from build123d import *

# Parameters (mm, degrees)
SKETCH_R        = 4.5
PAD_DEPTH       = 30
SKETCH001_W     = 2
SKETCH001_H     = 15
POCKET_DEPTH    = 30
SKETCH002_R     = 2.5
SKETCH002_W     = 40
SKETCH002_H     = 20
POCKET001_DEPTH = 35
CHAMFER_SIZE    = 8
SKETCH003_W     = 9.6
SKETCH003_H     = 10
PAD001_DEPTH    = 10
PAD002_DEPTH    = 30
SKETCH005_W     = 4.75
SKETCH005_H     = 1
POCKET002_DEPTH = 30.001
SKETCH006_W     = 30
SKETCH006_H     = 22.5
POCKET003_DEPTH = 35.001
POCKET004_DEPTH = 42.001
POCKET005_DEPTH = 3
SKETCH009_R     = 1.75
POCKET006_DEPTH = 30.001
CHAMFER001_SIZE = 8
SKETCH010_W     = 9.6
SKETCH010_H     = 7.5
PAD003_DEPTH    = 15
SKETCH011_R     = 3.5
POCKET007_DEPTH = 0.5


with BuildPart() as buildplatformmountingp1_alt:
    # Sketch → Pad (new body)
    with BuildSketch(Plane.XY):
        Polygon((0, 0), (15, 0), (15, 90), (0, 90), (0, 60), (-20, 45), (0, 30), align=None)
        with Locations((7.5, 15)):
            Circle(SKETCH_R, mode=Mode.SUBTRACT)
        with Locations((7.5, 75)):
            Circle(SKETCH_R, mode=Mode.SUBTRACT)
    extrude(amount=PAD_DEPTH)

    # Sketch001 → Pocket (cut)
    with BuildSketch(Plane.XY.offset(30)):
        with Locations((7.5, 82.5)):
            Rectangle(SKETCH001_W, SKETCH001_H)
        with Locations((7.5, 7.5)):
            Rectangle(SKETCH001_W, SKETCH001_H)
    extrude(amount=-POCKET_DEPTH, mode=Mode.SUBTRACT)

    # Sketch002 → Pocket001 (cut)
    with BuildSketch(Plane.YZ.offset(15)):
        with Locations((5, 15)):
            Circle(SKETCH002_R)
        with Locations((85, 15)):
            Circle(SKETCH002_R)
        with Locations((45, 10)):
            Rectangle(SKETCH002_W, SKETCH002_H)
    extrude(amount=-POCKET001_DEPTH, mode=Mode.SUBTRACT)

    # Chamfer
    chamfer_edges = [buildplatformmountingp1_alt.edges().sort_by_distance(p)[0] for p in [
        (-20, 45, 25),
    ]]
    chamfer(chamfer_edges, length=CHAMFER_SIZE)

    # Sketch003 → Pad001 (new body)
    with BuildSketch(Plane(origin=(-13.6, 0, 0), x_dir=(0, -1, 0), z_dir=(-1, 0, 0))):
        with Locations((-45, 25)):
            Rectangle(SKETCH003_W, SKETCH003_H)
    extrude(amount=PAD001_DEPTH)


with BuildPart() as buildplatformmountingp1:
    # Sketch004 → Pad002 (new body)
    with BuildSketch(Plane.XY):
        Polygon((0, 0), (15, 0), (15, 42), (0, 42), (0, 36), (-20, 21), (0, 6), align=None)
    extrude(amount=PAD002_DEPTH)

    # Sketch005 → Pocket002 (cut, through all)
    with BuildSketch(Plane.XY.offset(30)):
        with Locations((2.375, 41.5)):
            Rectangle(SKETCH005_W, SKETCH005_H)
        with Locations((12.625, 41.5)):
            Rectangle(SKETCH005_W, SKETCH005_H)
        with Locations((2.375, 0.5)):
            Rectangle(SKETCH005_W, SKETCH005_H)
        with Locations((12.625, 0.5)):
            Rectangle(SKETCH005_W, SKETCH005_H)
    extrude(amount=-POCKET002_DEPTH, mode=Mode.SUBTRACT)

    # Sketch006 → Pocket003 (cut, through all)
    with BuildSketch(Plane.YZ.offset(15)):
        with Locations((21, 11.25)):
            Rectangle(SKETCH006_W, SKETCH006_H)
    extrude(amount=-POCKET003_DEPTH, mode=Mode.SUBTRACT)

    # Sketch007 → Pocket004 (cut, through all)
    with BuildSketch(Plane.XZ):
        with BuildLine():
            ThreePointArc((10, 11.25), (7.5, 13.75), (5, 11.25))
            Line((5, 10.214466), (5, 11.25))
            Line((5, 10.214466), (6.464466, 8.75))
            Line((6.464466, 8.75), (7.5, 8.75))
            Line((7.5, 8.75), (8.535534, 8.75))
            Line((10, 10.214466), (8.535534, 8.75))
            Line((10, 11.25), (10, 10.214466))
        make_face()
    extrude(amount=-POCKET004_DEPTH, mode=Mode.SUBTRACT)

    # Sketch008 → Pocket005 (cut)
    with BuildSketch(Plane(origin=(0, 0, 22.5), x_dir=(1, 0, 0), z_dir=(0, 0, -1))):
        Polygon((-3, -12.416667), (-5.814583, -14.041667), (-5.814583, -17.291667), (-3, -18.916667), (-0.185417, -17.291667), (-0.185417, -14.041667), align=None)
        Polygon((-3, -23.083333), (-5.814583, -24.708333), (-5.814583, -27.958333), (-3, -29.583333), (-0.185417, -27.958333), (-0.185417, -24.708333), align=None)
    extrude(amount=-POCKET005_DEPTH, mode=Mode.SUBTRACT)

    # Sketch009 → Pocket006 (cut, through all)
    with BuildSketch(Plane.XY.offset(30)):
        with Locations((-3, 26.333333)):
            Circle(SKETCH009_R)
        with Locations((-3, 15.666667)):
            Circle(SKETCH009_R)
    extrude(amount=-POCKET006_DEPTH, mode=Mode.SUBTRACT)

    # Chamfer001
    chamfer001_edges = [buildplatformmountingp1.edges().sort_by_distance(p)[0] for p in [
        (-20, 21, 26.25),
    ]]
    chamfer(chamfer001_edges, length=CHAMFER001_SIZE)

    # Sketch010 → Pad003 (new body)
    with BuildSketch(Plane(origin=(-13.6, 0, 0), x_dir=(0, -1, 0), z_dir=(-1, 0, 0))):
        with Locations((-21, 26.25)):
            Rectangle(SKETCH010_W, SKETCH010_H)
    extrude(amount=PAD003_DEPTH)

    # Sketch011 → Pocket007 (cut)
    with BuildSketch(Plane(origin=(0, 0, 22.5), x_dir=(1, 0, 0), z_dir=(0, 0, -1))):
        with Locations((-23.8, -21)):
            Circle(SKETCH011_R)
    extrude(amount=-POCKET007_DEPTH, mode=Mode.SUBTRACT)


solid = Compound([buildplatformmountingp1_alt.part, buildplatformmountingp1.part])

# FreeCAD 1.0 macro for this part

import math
import FreeCAD as App
import Part
import Sketcher
Q = App.Units.Quantity


def edges_at(feature, points):
    """Names of the edges that pass closest to the given points."""
    edges = feature.Shape.Edges
    near = lambda p: min(range(len(edges)), key=lambda i: edges[i].distToShape(Part.Vertex(*p))[0])
    return sorted({f"Edge{near(p) + 1}" for p in points})


def add_polygon(sketch, points):
    """Adds a closed chain of lines whose ends are joined by coincident constraints."""
    first, n = sketch.GeometryCount, len(points)
    for a, b in zip(points, points[1:] + points[:1]):
        sketch.addGeometry(Part.LineSegment(App.Vector(*a, 0), App.Vector(*b, 0)), False)
    for i in range(n):
        sketch.addConstraint(Sketcher.Constraint("Coincident", first + i, 2, first + (i + 1) % n, 1))

doc = App.newDocument("Part")
body = doc.addObject("PartDesign::Body", "Body")

# Sketch on XY plane
sketch1 = doc.addObject("Sketcher::SketchObject", "Sketch")
body.addObject(sketch1)
sketch1.AttachmentSupport = (doc.XY_Plane, [""])
sketch1.MapMode = "FlatFace"
add_polygon(sketch1, [(0, 0), (15, 0), (15, 90), (0, 90), (0, 60), (-20, 45), (0, 30)])  # lines 0-6
sketch1.addGeometry(Part.Circle(App.Vector(7.5, 15, 0), App.Vector(0, 0, 1), 4.5), False)  # 7
sketch1.addGeometry(Part.Circle(App.Vector(7.5, 75, 0), App.Vector(0, 0, 1), 4.5), False)  # 8
sketch1.addConstraint([
    Sketcher.Constraint("Horizontal", 0),
    Sketcher.Constraint("Vertical", 1),
    Sketcher.Constraint("Horizontal", 2),
    Sketcher.Constraint("Vertical", 3),
    Sketcher.Constraint("Vertical", 6),
    Sketcher.Constraint("Coincident", 6, 2, -1, 1),
    Sketcher.Constraint("Equal", 7, 8),
    Sketcher.Constraint("PointOnObject", 2, 2, -2),
    Sketcher.Constraint("Vertical", 7, 3, 8, 3),
    Sketcher.Constraint("Equal", 3, 6),
    Sketcher.Constraint("Equal", 4, 5),
    Sketcher.Constraint("Diameter", 7, Q("9 mm")),
    Sketcher.Constraint("DistanceX", 0, 1, 0, 2, Q("15 mm")),
    Sketcher.Constraint("DistanceY", 1, 1, 1, 2, Q("90 mm")),
    Sketcher.Constraint("DistanceY", 3, 2, 3, 1, Q("30 mm")),
    Sketcher.Constraint("Distance", 4, Q("25 mm")),
    Sketcher.Constraint("DistanceY", -1, 1, 7, 3, Q("15 mm")),
    Sketcher.Constraint("DistanceY", -1, 1, 8, 3, Q("75 mm")),
    Sketcher.Constraint("DistanceX", -1, 1, 7, 3, Q("7.5 mm")),
])
pad1 = doc.addObject("PartDesign::Pad", "Pad")
body.addObject(pad1)
pad1.Profile = sketch1
pad1.Length = 30

# Sketch on XY plane
sketch2 = doc.addObject("Sketcher::SketchObject", "Sketch001")
body.addObject(sketch2)
sketch2.AttachmentSupport = (doc.XY_Plane, [""])
sketch2.MapMode = "FlatFace"
sketch2.AttachmentOffset = App.Placement(App.Vector(0, 0, 30), App.Rotation())
add_polygon(sketch2, [(6.5, 90), (6.5, 75), (8.5, 75), (8.5, 90)])  # lines 0-3
add_polygon(sketch2, [(6.5, 15), (6.5, 0), (8.5, 0), (8.5, 15)])  # lines 4-7
sketch2.addConstraint([
    Sketcher.Constraint("Vertical", 0),
    Sketcher.Constraint("Horizontal", 1),
    Sketcher.Constraint("Vertical", 2),
    Sketcher.Constraint("Horizontal", 3),
    Sketcher.Constraint("Vertical", 4),
    Sketcher.Constraint("Horizontal", 5),
    Sketcher.Constraint("Vertical", 6),
    Sketcher.Constraint("Horizontal", 7),
    Sketcher.Constraint("PointOnObject", 4, 2, -1),
    Sketcher.Constraint("Vertical", 3, 2, 4, 2),
    Sketcher.Constraint("Vertical", 2, 2, 5, 2),
    Sketcher.Constraint("Equal", 2, 4),
    Sketcher.Constraint("DistanceX", 1, 1, 1, 2, Q("2 mm")),
    Sketcher.Constraint("DistanceY", 0, 2, 0, 1, Q("15 mm")),
    Sketcher.Constraint("DistanceY", -1, 1, 0, 2, Q("75 mm")),
    Sketcher.Constraint("DistanceX", -1, 1, 0, 2, Q("6.5 mm")),
])
pocket1 = doc.addObject("PartDesign::Pocket", "Pocket")
body.addObject(pocket1)
pocket1.Profile = sketch2
pocket1.Length = 30

# Sketch on YZ plane
sketch3 = doc.addObject("Sketcher::SketchObject", "Sketch002")
body.addObject(sketch3)
sketch3.AttachmentSupport = (doc.YZ_Plane, [""])
sketch3.MapMode = "FlatFace"
sketch3.AttachmentOffset = App.Placement(App.Vector(0, 0, 15), App.Rotation())
sketch3.addGeometry(Part.Circle(App.Vector(5, 15, 0), App.Vector(0, 0, 1), 2.5), False)  # 0
sketch3.addGeometry(Part.Circle(App.Vector(85, 15, 0), App.Vector(0, 0, 1), 2.5), False)  # 1
add_polygon(sketch3, [(25, 20), (25, 0), (65, 0), (65, 20)])  # lines 2-5
sketch3.addConstraint([
    Sketcher.Constraint("Vertical", 2),
    Sketcher.Constraint("Horizontal", 3),
    Sketcher.Constraint("Vertical", 4),
    Sketcher.Constraint("Horizontal", 5),
    Sketcher.Constraint("Equal", 0, 1),
    Sketcher.Constraint("PointOnObject", 2, 2, -1),
    Sketcher.Constraint("Horizontal", 0, 3, 1, 3),
    Sketcher.Constraint("Diameter", 0, Q("5 mm")),
    Sketcher.Constraint("DistanceX", 3, 1, 3, 2, Q("40 mm")),
    Sketcher.Constraint("DistanceY", 2, 2, 2, 1, Q("20 mm")),
    Sketcher.Constraint("DistanceX", -1, 1, 0, 3, Q("5 mm")),
    Sketcher.Constraint("DistanceY", -1, 1, 0, 3, Q("15 mm")),
    Sketcher.Constraint("DistanceX", -1, 1, 1, 3, Q("85 mm")),
    Sketcher.Constraint("DistanceX", -1, 1, 2, 2, Q("25 mm")),
])
pocket2 = doc.addObject("PartDesign::Pocket", "Pocket001")
body.addObject(pocket2)
pocket2.Profile = sketch3
pocket2.Length = 35
doc.recompute()

chamfer = doc.addObject("PartDesign::Chamfer", "Chamfer")
body.addObject(chamfer)
chamfer.Base = (pocket2, edges_at(pocket2, [(-20, 45, 25)]))
chamfer.Size = 8

# Sketch on YZ plane
sketch4 = doc.addObject("Sketcher::SketchObject", "Sketch003")
body.addObject(sketch4)
sketch4.AttachmentSupport = (doc.YZ_Plane, [""])
sketch4.MapMode = "FlatFace"
sketch4.AttachmentOffset = App.Placement(App.Vector(0, 0, -13.6), App.Rotation())
add_polygon(sketch4, [(50, 30), (50, 20), (40, 20), (40, 30)])  # lines 0-3
sketch4.addConstraint([
    Sketcher.Constraint("Vertical", 0),
    Sketcher.Constraint("Horizontal", 1),
    Sketcher.Constraint("Vertical", 2),
    Sketcher.Constraint("Horizontal", 3),
    Sketcher.Constraint("DistanceY", 0, 2, 0, 1, Q("10 mm")),
    Sketcher.Constraint("DistanceX", 1, 2, 1, 1, Q("9.6 mm")),
    Sketcher.Constraint("DistanceY", -1, 1, 0, 2, Q("20 mm")),
    Sketcher.Constraint("DistanceX", -1, 1, 0, 2, Q("49.8 mm")),
])
pad2 = doc.addObject("PartDesign::Pad", "Pad001")
body.addObject(pad2)
pad2.Profile = sketch4
pad2.Length = 10
pad2.Reversed = True
body2 = doc.addObject("PartDesign::Body", "Body001")

# Sketch on XY plane
sketch5 = doc.addObject("Sketcher::SketchObject", "Sketch004")
body2.addObject(sketch5)
sketch5.AttachmentSupport = (doc.getObject("XY_Plane001"), [""])
sketch5.MapMode = "FlatFace"
add_polygon(sketch5, [(0, 0), (15, 0), (15, 42), (0, 42), (0, 36), (-20, 21), (0, 6)])  # lines 0-6
sketch5.addConstraint([
    Sketcher.Constraint("Horizontal", 0),
    Sketcher.Constraint("Vertical", 1),
    Sketcher.Constraint("Horizontal", 2),
    Sketcher.Constraint("Vertical", 3),
    Sketcher.Constraint("Vertical", 6),
    Sketcher.Constraint("Coincident", 6, 2, -1, 1),
    Sketcher.Constraint("PointOnObject", 2, 2, -2),
    Sketcher.Constraint("Equal", 3, 6),
    Sketcher.Constraint("Equal", 4, 5),
    Sketcher.Constraint("DistanceX", 0, 1, 0, 2, Q("15 mm")),
    Sketcher.Constraint("DistanceY", 1, 1, 1, 2, Q("42 mm")),
    Sketcher.Constraint("DistanceY", 3, 2, 3, 1, Q("6 mm")),
    Sketcher.Constraint("Distance", 4, Q("25 mm")),
])
pad3 = doc.addObject("PartDesign::Pad", "Pad002")
body2.addObject(pad3)
pad3.Profile = sketch5
pad3.Length = 30

# Sketch on XY plane
sketch6 = doc.addObject("Sketcher::SketchObject", "Sketch005")
body2.addObject(sketch6)
sketch6.AttachmentSupport = (doc.getObject("XY_Plane001"), [""])
sketch6.MapMode = "FlatFace"
sketch6.AttachmentOffset = App.Placement(App.Vector(0, 0, 30), App.Rotation())
add_polygon(sketch6, [(0, 42), (0, 41), (4.8, 41), (4.8, 42)])  # lines 0-3
add_polygon(sketch6, [(10.2, 42), (10.2, 41), (15, 41), (15, 42)])  # lines 4-7
add_polygon(sketch6, [(0, 1), (0, 0), (4.8, 0), (4.8, 1)])  # lines 8-11
add_polygon(sketch6, [(10.2, 1), (10.2, 0), (15, 0), (15, 1)])  # lines 12-15
sketch6.addConstraint([
    Sketcher.Constraint("Vertical", 0),
    Sketcher.Constraint("Horizontal", 1),
    Sketcher.Constraint("Vertical", 2),
    Sketcher.Constraint("Horizontal", 3),
    Sketcher.Constraint("Vertical", 4),
    Sketcher.Constraint("Horizontal", 5),
    Sketcher.Constraint("Vertical", 6),
    Sketcher.Constraint("Horizontal", 7),
    Sketcher.Constraint("Vertical", 8),
    Sketcher.Constraint("Horizontal", 9),
    Sketcher.Constraint("Vertical", 10),
    Sketcher.Constraint("Horizontal", 11),
    Sketcher.Constraint("Vertical", 12),
    Sketcher.Constraint("Horizontal", 13),
    Sketcher.Constraint("Vertical", 14),
    Sketcher.Constraint("Horizontal", 15),
    Sketcher.Constraint("Coincident", 8, 2, -1, 1),
    Sketcher.Constraint("PointOnObject", 0, 2, -2),
    Sketcher.Constraint("PointOnObject", 12, 2, -1),
    Sketcher.Constraint("Horizontal", 1, 2, 4, 2),
    Sketcher.Constraint("Horizontal", 3, 2, 6, 2),
    Sketcher.Constraint("Horizontal", 11, 2, 14, 2),
    Sketcher.Constraint("Vertical", 2, 2, 9, 2),
    Sketcher.Constraint("Vertical", 7, 2, 12, 2),
    Sketcher.Constraint("Vertical", 6, 2, 13, 2),
    Sketcher.Constraint("Equal", 3, 5),
    Sketcher.Constraint("Equal", 6, 8),
    Sketcher.Constraint("DistanceY", 0, 2, 0, 1, Q("1 mm")),
    Sketcher.Constraint("DistanceY", -1, 1, 0, 2, Q("41 mm")),
    Sketcher.Constraint("DistanceX", -1, 1, 5, 2, Q("15 mm")),
    Sketcher.Constraint("DistanceX", 1, 1, 1, 2, Q("4.75 mm")),
])
pocket3 = doc.addObject("PartDesign::Pocket", "Pocket002")
body2.addObject(pocket3)
pocket3.Profile = sketch6
pocket3.Type = "ThroughAll"

# Sketch on YZ plane
sketch7 = doc.addObject("Sketcher::SketchObject", "Sketch006")
body2.addObject(sketch7)
sketch7.AttachmentSupport = (doc.getObject("YZ_Plane001"), [""])
sketch7.MapMode = "FlatFace"
sketch7.AttachmentOffset = App.Placement(App.Vector(0, 0, 15), App.Rotation())
add_polygon(sketch7, [(6, 22), (6, 0), (36, 0), (36, 22)])  # lines 0-3
sketch7.addConstraint([
    Sketcher.Constraint("Vertical", 0),
    Sketcher.Constraint("Horizontal", 1),
    Sketcher.Constraint("Vertical", 2),
    Sketcher.Constraint("Horizontal", 3),
    Sketcher.Constraint("PointOnObject", 0, 2, -1),
    Sketcher.Constraint("DistanceX", 1, 1, 1, 2, Q("30 mm")),
    Sketcher.Constraint("DistanceY", 0, 2, 0, 1, Q("22.5 mm")),
    Sketcher.Constraint("DistanceX", -1, 1, 0, 2, Q("6 mm")),
])
pocket4 = doc.addObject("PartDesign::Pocket", "Pocket003")
body2.addObject(pocket4)
pocket4.Profile = sketch7
pocket4.Type = "ThroughAll"

# Sketch on XZ plane
sketch8 = doc.addObject("Sketcher::SketchObject", "Sketch007")
body2.addObject(sketch8)
sketch8.AttachmentSupport = (doc.getObject("XZ_Plane001"), [""])
sketch8.MapMode = "FlatFace"
sketch8.addGeometry([
    Part.ArcOfCircle(Part.Circle(App.Vector(7.5, 11.2, 0), App.Vector(0, 0, 1), 2.5), math.radians(0), math.radians(180)),  # 0
    Part.LineSegment(App.Vector(5, 11.2, 0), App.Vector(5, 10.2, 0)),  # 1
    Part.LineSegment(App.Vector(5, 10.2, 0), App.Vector(6.5, 8.8, 0)),  # 2
    Part.LineSegment(App.Vector(6.5, 8.8, 0), App.Vector(8.5, 8.8, 0)),  # 3
    Part.LineSegment(App.Vector(8.5, 8.8, 0), App.Vector(10, 10.2, 0)),  # 4
    Part.LineSegment(App.Vector(10, 10.2, 0), App.Vector(10, 11.2, 0)),  # 5
], False)
sketch8.addConstraint([
    Sketcher.Constraint("Tangent", 0, 2, 1, 1),
    Sketcher.Constraint("Coincident", 1, 2, 2, 1),
    Sketcher.Constraint("Coincident", 2, 2, 3, 1),
    Sketcher.Constraint("Coincident", 3, 2, 4, 1),
    Sketcher.Constraint("Coincident", 4, 2, 5, 1),
    Sketcher.Constraint("Tangent", 5, 2, 0, 1),
    Sketcher.Constraint("Vertical", 1),
    Sketcher.Constraint("Horizontal", 3),
    Sketcher.Constraint("Vertical", 5),
    Sketcher.Constraint("Perpendicular", 2, 4),
    Sketcher.Constraint("Horizontal", 1, 2, 4, 2),
    Sketcher.Constraint("Equal", 2, 4),
    Sketcher.Constraint("Radius", 0, Q("2.5 mm")),
    Sketcher.Constraint("DistanceX", -1, 1, 0, 2, Q("5 mm")),
    Sketcher.Constraint("DistanceY", 2, 2, 0, 3, Q("2.5 mm")),
    Sketcher.Constraint("DistanceY", -1, 1, 0, 3, Q("11.25 mm")),
    Sketcher.Constraint("DistanceX", 3, 1, 3, 2, Q("2.071068 mm")),
])
pocket5 = doc.addObject("PartDesign::Pocket", "Pocket004")
body2.addObject(pocket5)
pocket5.Profile = sketch8
pocket5.Type = "ThroughAll"

# Sketch on XY plane
sketch9 = doc.addObject("Sketcher::SketchObject", "Sketch008")
body2.addObject(sketch9)
sketch9.AttachmentSupport = (doc.getObject("XY_Plane001"), [""])
sketch9.MapMode = "FlatFace"
sketch9.AttachmentOffset = App.Placement(App.Vector(0, 0, 22.5), App.Rotation())
add_polygon(sketch9, [(-3, 12.4), (-5.8, 14), (-5.8, 17.3), (-3, 18.9), (-0.2, 17.3), (-0.2, 14)])  # lines 0-5
add_polygon(sketch9, [(-3, 23.1), (-5.8, 24.7), (-5.8, 28), (-3, 29.6), (-0.2, 28), (-0.2, 24.7)])  # lines 6-11
sketch9.addConstraint([
    Sketcher.Constraint("Vertical", 1),
    Sketcher.Constraint("Vertical", 4),
    Sketcher.Constraint("Vertical", 7),
    Sketcher.Constraint("Vertical", 10),
    Sketcher.Constraint("Parallel", 0, 3),
    Sketcher.Constraint("Parallel", 2, 5),
    Sketcher.Constraint("Parallel", 3, 6),
    Sketcher.Constraint("Parallel", 5, 8),
    Sketcher.Constraint("Parallel", 6, 9),
    Sketcher.Constraint("Parallel", 8, 11),
    Sketcher.Constraint("Horizontal", 1, 2, 3, 2),
    Sketcher.Constraint("Horizontal", 0, 2, 4, 2),
    Sketcher.Constraint("Horizontal", 7, 2, 9, 2),
    Sketcher.Constraint("Horizontal", 6, 2, 10, 2),
    Sketcher.Constraint("Vertical", 2, 2, 5, 2),
    Sketcher.Constraint("Vertical", 1, 2, 6, 2),
    Sketcher.Constraint("Vertical", 5, 2, 8, 2),
    Sketcher.Constraint("Equal", 4, 7),
    Sketcher.Constraint("Angle", 0, Q("150.000004 deg")),
    Sketcher.Constraint("DistanceX", 2, 2, -1, 1, Q("3 mm")),
    Sketcher.Constraint("DistanceY", 1, 1, 1, 2, Q("3.25 mm")),
    Sketcher.Constraint("DistanceY", 5, 2, 2, 2, Q("6.5 mm")),
    Sketcher.Constraint("DistanceY", -1, 1, 0, 2, Q("14.041667 mm")),
    Sketcher.Constraint("DistanceY", -1, 1, 6, 2, Q("24.708333 mm")),
])
pocket6 = doc.addObject("PartDesign::Pocket", "Pocket005")
body2.addObject(pocket6)
pocket6.Profile = sketch9
pocket6.Length = 3
pocket6.Reversed = True

# Sketch on XY plane
sketch10 = doc.addObject("Sketcher::SketchObject", "Sketch009")
body2.addObject(sketch10)
sketch10.AttachmentSupport = (doc.getObject("XY_Plane001"), [""])
sketch10.MapMode = "FlatFace"
sketch10.AttachmentOffset = App.Placement(App.Vector(0, 0, 30), App.Rotation())
sketch10.addGeometry([
    Part.Circle(App.Vector(-3, 26.3, 0), App.Vector(0, 0, 1), 1.8),
    Part.Circle(App.Vector(-3, 15.7, 0), App.Vector(0, 0, 1), 1.8),
], False)
sketch10.addConstraint([
    Sketcher.Constraint("Equal", 0, 1),
    Sketcher.Constraint("Vertical", 0, 3, 1, 3),
    Sketcher.Constraint("Diameter", 0, Q("3.5 mm")),
    Sketcher.Constraint("DistanceX", 0, 3, -1, 1, Q("3 mm")),
    Sketcher.Constraint("DistanceY", -1, 1, 0, 3, Q("26.333333 mm")),
    Sketcher.Constraint("DistanceY", -1, 1, 1, 3, Q("15.666667 mm")),
])
pocket7 = doc.addObject("PartDesign::Pocket", "Pocket006")
body2.addObject(pocket7)
pocket7.Profile = sketch10
pocket7.Type = "ThroughAll"
doc.recompute()

chamfer2 = doc.addObject("PartDesign::Chamfer", "Chamfer001")
body2.addObject(chamfer2)
chamfer2.Base = (pocket7, edges_at(pocket7, [(-20, 21, 26.25)]))
chamfer2.Size = 8

# Sketch on YZ plane
sketch11 = doc.addObject("Sketcher::SketchObject", "Sketch010")
body2.addObject(sketch11)
sketch11.AttachmentSupport = (doc.getObject("YZ_Plane001"), [""])
sketch11.MapMode = "FlatFace"
sketch11.AttachmentOffset = App.Placement(App.Vector(0, 0, -13.6), App.Rotation())
add_polygon(sketch11, [(26, 30), (26, 22), (16, 22), (16, 30)])  # lines 0-3
sketch11.addConstraint([
    Sketcher.Constraint("Vertical", 0),
    Sketcher.Constraint("Horizontal", 1),
    Sketcher.Constraint("Vertical", 2),
    Sketcher.Constraint("Horizontal", 3),
    Sketcher.Constraint("DistanceX", 1, 2, 1, 1, Q("9.6 mm")),
    Sketcher.Constraint("DistanceY", 0, 2, 0, 1, Q("7.5 mm")),
    Sketcher.Constraint("DistanceY", -1, 1, 2, 2, Q("30 mm")),
    Sketcher.Constraint("DistanceX", -1, 1, 0, 2, Q("25.8 mm")),
])
pad4 = doc.addObject("PartDesign::Pad", "Pad003")
body2.addObject(pad4)
pad4.Profile = sketch11
pad4.Length = 15
pad4.Reversed = True

# Sketch on XY plane
sketch12 = doc.addObject("Sketcher::SketchObject", "Sketch011")
body2.addObject(sketch12)
sketch12.AttachmentSupport = (doc.getObject("XY_Plane001"), [""])
sketch12.MapMode = "FlatFace"
sketch12.AttachmentOffset = App.Placement(App.Vector(0, 0, 22.5), App.Rotation())
sketch12.addGeometry(Part.Circle(App.Vector(-23.8, 21, 0), App.Vector(0, 0, 1), 3.5), False)
sketch12.addConstraint([
    Sketcher.Constraint("Diameter", 0, Q("7 mm")),
    Sketcher.Constraint("DistanceY", -1, 1, 0, 3, Q("21 mm")),
    Sketcher.Constraint("DistanceX", 0, 3, -1, 1, Q("23.8 mm")),
])
pocket8 = doc.addObject("PartDesign::Pocket", "Pocket007")
body2.addObject(pocket8)
pocket8.Profile = sketch12
pocket8.Length = 0.5
pocket8.Reversed = True

doc.recompute()
